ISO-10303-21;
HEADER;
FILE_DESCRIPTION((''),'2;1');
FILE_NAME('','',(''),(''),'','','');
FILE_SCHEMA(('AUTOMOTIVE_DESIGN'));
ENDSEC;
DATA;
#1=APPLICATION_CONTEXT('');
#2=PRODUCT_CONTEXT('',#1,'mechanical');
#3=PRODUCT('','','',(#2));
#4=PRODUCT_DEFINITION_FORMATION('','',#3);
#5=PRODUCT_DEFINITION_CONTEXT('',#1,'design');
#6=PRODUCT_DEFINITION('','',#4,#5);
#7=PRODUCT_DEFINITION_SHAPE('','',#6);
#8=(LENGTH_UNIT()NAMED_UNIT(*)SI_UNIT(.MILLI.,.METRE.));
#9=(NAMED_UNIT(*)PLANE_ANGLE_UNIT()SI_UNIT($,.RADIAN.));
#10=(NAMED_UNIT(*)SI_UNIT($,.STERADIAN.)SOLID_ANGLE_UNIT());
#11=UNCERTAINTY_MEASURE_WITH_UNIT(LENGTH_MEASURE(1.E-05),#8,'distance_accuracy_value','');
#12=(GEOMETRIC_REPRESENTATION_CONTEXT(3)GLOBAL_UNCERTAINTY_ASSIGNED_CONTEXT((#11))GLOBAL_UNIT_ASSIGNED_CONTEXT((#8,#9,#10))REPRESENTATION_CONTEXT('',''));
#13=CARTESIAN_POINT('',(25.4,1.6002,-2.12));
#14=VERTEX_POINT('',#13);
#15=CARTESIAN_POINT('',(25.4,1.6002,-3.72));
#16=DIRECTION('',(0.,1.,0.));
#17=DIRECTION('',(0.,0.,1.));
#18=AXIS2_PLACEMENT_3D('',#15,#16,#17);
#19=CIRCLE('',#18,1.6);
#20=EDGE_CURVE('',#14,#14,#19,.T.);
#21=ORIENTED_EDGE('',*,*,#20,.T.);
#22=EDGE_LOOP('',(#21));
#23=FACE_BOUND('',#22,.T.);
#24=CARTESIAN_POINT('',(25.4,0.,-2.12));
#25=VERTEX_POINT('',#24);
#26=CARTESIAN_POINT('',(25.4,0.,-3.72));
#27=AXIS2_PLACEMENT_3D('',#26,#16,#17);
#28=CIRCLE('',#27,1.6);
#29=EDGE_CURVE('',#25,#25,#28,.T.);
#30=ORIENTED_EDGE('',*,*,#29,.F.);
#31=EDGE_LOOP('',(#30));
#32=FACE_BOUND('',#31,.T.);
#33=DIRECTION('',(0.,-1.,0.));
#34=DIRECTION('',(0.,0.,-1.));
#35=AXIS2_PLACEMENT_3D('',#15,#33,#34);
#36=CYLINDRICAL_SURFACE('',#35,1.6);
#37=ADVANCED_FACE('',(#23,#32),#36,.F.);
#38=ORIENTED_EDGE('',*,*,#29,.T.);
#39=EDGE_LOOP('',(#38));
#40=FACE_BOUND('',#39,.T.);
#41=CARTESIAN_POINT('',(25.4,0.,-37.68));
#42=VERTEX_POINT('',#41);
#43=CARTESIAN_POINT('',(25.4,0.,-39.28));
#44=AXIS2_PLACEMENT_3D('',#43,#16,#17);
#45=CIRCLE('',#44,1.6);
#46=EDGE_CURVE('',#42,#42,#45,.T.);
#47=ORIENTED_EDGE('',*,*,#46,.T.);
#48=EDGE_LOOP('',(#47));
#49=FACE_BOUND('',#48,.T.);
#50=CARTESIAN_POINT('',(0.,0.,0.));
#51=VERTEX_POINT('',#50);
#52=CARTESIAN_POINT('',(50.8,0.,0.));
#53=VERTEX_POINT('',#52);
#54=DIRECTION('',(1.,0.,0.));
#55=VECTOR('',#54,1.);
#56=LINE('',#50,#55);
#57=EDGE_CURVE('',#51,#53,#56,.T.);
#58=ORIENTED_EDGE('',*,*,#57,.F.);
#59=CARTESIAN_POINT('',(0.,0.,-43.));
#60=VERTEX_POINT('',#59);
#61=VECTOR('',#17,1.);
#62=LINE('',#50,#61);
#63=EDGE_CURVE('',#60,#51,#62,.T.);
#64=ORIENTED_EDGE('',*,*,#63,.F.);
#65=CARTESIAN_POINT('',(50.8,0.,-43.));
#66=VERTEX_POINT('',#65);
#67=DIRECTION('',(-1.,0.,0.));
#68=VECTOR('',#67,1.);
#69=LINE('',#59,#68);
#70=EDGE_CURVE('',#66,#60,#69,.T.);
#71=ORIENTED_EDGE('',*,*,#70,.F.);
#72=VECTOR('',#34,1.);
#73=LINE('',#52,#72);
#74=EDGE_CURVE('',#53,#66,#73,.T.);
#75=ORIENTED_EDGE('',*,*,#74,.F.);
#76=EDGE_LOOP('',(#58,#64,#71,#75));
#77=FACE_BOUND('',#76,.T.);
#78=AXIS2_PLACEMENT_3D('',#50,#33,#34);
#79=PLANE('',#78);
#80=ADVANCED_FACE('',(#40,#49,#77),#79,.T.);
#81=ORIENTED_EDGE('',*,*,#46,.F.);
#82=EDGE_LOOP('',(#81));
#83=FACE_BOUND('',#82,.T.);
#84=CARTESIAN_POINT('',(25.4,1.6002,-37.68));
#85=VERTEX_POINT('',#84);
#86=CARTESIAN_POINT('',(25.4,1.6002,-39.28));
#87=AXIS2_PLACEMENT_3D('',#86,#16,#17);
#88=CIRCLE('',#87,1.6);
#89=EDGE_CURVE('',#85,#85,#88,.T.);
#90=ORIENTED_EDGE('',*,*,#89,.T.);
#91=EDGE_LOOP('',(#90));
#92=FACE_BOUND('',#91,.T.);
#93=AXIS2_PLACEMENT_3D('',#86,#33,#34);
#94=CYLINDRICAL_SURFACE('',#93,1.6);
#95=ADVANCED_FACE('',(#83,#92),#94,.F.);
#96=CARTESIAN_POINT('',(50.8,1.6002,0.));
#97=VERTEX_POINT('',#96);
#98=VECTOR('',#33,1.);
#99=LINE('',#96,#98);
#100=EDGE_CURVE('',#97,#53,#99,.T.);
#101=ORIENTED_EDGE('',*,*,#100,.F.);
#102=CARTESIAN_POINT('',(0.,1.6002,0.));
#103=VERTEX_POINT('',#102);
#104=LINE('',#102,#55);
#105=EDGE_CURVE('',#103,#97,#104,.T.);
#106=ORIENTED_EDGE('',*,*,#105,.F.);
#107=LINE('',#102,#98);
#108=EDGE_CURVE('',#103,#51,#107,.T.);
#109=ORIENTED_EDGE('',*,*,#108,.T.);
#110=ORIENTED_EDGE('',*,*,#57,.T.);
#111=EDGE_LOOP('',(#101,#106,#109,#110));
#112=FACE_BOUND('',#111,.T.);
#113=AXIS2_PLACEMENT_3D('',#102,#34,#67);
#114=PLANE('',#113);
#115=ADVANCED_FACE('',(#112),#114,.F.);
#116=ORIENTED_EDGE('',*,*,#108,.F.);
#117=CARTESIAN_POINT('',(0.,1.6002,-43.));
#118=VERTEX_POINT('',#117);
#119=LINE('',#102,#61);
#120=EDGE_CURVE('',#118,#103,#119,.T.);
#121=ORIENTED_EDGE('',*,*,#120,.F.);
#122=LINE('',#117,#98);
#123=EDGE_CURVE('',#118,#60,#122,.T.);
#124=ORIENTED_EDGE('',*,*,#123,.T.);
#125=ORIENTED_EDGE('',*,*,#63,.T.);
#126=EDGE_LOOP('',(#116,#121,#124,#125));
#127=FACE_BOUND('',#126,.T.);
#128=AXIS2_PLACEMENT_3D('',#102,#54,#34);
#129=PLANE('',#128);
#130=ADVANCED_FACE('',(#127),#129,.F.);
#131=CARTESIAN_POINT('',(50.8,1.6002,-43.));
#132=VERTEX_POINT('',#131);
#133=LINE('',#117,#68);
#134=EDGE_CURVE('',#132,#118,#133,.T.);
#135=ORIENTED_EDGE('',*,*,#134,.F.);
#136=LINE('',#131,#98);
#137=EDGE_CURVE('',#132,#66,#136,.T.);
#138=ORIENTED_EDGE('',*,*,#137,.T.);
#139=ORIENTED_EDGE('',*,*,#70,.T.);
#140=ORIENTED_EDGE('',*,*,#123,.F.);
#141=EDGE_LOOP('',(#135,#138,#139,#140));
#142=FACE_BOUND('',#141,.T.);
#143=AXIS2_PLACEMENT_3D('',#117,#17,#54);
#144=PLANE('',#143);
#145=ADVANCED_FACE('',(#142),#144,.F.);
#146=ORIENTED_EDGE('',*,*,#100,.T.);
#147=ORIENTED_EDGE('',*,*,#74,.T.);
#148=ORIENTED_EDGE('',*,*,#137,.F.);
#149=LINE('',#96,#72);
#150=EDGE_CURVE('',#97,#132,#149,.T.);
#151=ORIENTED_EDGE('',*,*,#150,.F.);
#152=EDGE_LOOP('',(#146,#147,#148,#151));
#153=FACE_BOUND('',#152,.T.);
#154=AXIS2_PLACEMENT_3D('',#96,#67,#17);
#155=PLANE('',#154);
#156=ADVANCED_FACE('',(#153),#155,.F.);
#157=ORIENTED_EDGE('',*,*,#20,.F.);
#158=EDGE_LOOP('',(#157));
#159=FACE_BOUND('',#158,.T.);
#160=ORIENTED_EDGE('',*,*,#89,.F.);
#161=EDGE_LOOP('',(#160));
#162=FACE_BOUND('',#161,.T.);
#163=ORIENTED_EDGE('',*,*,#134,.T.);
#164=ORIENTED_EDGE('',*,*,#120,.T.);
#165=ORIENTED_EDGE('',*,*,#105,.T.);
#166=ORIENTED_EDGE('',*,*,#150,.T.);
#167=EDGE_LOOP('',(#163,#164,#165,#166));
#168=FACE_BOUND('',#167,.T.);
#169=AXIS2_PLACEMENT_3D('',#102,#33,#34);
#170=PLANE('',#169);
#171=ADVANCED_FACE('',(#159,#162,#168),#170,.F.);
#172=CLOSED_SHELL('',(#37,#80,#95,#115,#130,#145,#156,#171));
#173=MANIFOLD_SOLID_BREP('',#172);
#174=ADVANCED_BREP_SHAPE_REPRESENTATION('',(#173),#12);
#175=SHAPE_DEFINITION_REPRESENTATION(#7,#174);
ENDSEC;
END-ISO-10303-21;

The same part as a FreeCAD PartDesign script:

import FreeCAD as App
import Part
import Sketcher


def add_polygon(sketch, points):
    """Adds a closed chain of lines whose ends are joined by coincident constraints."""
    first, n = sketch.GeometryCount, len(points)
    for a, b in zip(points, points[1:] + points[:1]):
        sketch.addGeometry(Part.LineSegment(App.Vector(*a, 0), App.Vector(*b, 0)), False)
    for i in range(n):
        sketch.addConstraint(Sketcher.Constraint("Coincident", first + i, 2, first + (i + 1) % n, 1))

doc = App.newDocument("Part")
params = doc.addObject("Spreadsheet::Sheet", "Params")
for row, (alias, value) in enumerate([
    ("sketch1_diameter", "3.2 mm"),
    ("sketch1_height", "43 mm"),
    ("sketch1_width", "50.8 mm"),
    ("pad1_length", "1.6002 mm"),
], start=1):
    params.set(f"A{row}", alias)
    params.set(f"B{row}", "=" + value)
    params.setAlias(f"B{row}", alias)

body = doc.addObject("PartDesign::Body", "Body")

# Sketch on XZ plane
sketch1 = body.newObject("Sketcher::SketchObject", "Sketch")
sketch1.AttachmentSupport = (doc.getObject("XZ_Plane"), [""])
sketch1.MapMode = "FlatFace"
add_polygon(sketch1, [(0, -43), (0, 0), (50.8, 0), (50.8, -43)])  # lines 0-3
sketch1.addGeometry(Part.Circle(App.Vector(25.4, -3.7, 0), App.Vector(0, 0, 1), 1.6), False)  # 4
sketch1.addGeometry(Part.Circle(App.Vector(25.4, -39.3, 0), App.Vector(0, 0, 1), 1.6), False)  # 5
sketch1.addConstraint([
    Sketcher.Constraint("Vertical", 0),
    Sketcher.Constraint("Horizontal", 1),
    Sketcher.Constraint("Vertical", 2),
    Sketcher.Constraint("Horizontal", 3),
    Sketcher.Constraint("Coincident", 0, 2, -1, 1),
    Sketcher.Constraint("Equal", 4, 5),
    Sketcher.Constraint("Vertical", 4, 3, 5, 3),
    Sketcher.Constraint("Diameter", 4, 3.2),
    Sketcher.Constraint("DistanceY", 0, 1, 0, 2, 43.0),
    Sketcher.Constraint("DistanceX", 1, 1, 1, 2, 50.8),
    Sketcher.Constraint("DistanceX", -1, 1, 4, 3, 25.4),
    Sketcher.Constraint("DistanceY", 4, 3, -1, 1, 3.72),
    Sketcher.Constraint("DistanceY", 5, 3, -1, 1, 39.28),
])
sketch1.setExpression("Constraints[11]", "Params.sketch1_diameter")
sketch1.setExpression("Constraints[12]", "Params.sketch1_height")
sketch1.setExpression("Constraints[13]", "Params.sketch1_width")
pad1 = body.newObject("PartDesign::Pad", "Pad")
pad1.Profile = sketch1
pad1.setExpression("Length", "Params.pad1_length")
pad1.Reversed = True

doc.recompute()
